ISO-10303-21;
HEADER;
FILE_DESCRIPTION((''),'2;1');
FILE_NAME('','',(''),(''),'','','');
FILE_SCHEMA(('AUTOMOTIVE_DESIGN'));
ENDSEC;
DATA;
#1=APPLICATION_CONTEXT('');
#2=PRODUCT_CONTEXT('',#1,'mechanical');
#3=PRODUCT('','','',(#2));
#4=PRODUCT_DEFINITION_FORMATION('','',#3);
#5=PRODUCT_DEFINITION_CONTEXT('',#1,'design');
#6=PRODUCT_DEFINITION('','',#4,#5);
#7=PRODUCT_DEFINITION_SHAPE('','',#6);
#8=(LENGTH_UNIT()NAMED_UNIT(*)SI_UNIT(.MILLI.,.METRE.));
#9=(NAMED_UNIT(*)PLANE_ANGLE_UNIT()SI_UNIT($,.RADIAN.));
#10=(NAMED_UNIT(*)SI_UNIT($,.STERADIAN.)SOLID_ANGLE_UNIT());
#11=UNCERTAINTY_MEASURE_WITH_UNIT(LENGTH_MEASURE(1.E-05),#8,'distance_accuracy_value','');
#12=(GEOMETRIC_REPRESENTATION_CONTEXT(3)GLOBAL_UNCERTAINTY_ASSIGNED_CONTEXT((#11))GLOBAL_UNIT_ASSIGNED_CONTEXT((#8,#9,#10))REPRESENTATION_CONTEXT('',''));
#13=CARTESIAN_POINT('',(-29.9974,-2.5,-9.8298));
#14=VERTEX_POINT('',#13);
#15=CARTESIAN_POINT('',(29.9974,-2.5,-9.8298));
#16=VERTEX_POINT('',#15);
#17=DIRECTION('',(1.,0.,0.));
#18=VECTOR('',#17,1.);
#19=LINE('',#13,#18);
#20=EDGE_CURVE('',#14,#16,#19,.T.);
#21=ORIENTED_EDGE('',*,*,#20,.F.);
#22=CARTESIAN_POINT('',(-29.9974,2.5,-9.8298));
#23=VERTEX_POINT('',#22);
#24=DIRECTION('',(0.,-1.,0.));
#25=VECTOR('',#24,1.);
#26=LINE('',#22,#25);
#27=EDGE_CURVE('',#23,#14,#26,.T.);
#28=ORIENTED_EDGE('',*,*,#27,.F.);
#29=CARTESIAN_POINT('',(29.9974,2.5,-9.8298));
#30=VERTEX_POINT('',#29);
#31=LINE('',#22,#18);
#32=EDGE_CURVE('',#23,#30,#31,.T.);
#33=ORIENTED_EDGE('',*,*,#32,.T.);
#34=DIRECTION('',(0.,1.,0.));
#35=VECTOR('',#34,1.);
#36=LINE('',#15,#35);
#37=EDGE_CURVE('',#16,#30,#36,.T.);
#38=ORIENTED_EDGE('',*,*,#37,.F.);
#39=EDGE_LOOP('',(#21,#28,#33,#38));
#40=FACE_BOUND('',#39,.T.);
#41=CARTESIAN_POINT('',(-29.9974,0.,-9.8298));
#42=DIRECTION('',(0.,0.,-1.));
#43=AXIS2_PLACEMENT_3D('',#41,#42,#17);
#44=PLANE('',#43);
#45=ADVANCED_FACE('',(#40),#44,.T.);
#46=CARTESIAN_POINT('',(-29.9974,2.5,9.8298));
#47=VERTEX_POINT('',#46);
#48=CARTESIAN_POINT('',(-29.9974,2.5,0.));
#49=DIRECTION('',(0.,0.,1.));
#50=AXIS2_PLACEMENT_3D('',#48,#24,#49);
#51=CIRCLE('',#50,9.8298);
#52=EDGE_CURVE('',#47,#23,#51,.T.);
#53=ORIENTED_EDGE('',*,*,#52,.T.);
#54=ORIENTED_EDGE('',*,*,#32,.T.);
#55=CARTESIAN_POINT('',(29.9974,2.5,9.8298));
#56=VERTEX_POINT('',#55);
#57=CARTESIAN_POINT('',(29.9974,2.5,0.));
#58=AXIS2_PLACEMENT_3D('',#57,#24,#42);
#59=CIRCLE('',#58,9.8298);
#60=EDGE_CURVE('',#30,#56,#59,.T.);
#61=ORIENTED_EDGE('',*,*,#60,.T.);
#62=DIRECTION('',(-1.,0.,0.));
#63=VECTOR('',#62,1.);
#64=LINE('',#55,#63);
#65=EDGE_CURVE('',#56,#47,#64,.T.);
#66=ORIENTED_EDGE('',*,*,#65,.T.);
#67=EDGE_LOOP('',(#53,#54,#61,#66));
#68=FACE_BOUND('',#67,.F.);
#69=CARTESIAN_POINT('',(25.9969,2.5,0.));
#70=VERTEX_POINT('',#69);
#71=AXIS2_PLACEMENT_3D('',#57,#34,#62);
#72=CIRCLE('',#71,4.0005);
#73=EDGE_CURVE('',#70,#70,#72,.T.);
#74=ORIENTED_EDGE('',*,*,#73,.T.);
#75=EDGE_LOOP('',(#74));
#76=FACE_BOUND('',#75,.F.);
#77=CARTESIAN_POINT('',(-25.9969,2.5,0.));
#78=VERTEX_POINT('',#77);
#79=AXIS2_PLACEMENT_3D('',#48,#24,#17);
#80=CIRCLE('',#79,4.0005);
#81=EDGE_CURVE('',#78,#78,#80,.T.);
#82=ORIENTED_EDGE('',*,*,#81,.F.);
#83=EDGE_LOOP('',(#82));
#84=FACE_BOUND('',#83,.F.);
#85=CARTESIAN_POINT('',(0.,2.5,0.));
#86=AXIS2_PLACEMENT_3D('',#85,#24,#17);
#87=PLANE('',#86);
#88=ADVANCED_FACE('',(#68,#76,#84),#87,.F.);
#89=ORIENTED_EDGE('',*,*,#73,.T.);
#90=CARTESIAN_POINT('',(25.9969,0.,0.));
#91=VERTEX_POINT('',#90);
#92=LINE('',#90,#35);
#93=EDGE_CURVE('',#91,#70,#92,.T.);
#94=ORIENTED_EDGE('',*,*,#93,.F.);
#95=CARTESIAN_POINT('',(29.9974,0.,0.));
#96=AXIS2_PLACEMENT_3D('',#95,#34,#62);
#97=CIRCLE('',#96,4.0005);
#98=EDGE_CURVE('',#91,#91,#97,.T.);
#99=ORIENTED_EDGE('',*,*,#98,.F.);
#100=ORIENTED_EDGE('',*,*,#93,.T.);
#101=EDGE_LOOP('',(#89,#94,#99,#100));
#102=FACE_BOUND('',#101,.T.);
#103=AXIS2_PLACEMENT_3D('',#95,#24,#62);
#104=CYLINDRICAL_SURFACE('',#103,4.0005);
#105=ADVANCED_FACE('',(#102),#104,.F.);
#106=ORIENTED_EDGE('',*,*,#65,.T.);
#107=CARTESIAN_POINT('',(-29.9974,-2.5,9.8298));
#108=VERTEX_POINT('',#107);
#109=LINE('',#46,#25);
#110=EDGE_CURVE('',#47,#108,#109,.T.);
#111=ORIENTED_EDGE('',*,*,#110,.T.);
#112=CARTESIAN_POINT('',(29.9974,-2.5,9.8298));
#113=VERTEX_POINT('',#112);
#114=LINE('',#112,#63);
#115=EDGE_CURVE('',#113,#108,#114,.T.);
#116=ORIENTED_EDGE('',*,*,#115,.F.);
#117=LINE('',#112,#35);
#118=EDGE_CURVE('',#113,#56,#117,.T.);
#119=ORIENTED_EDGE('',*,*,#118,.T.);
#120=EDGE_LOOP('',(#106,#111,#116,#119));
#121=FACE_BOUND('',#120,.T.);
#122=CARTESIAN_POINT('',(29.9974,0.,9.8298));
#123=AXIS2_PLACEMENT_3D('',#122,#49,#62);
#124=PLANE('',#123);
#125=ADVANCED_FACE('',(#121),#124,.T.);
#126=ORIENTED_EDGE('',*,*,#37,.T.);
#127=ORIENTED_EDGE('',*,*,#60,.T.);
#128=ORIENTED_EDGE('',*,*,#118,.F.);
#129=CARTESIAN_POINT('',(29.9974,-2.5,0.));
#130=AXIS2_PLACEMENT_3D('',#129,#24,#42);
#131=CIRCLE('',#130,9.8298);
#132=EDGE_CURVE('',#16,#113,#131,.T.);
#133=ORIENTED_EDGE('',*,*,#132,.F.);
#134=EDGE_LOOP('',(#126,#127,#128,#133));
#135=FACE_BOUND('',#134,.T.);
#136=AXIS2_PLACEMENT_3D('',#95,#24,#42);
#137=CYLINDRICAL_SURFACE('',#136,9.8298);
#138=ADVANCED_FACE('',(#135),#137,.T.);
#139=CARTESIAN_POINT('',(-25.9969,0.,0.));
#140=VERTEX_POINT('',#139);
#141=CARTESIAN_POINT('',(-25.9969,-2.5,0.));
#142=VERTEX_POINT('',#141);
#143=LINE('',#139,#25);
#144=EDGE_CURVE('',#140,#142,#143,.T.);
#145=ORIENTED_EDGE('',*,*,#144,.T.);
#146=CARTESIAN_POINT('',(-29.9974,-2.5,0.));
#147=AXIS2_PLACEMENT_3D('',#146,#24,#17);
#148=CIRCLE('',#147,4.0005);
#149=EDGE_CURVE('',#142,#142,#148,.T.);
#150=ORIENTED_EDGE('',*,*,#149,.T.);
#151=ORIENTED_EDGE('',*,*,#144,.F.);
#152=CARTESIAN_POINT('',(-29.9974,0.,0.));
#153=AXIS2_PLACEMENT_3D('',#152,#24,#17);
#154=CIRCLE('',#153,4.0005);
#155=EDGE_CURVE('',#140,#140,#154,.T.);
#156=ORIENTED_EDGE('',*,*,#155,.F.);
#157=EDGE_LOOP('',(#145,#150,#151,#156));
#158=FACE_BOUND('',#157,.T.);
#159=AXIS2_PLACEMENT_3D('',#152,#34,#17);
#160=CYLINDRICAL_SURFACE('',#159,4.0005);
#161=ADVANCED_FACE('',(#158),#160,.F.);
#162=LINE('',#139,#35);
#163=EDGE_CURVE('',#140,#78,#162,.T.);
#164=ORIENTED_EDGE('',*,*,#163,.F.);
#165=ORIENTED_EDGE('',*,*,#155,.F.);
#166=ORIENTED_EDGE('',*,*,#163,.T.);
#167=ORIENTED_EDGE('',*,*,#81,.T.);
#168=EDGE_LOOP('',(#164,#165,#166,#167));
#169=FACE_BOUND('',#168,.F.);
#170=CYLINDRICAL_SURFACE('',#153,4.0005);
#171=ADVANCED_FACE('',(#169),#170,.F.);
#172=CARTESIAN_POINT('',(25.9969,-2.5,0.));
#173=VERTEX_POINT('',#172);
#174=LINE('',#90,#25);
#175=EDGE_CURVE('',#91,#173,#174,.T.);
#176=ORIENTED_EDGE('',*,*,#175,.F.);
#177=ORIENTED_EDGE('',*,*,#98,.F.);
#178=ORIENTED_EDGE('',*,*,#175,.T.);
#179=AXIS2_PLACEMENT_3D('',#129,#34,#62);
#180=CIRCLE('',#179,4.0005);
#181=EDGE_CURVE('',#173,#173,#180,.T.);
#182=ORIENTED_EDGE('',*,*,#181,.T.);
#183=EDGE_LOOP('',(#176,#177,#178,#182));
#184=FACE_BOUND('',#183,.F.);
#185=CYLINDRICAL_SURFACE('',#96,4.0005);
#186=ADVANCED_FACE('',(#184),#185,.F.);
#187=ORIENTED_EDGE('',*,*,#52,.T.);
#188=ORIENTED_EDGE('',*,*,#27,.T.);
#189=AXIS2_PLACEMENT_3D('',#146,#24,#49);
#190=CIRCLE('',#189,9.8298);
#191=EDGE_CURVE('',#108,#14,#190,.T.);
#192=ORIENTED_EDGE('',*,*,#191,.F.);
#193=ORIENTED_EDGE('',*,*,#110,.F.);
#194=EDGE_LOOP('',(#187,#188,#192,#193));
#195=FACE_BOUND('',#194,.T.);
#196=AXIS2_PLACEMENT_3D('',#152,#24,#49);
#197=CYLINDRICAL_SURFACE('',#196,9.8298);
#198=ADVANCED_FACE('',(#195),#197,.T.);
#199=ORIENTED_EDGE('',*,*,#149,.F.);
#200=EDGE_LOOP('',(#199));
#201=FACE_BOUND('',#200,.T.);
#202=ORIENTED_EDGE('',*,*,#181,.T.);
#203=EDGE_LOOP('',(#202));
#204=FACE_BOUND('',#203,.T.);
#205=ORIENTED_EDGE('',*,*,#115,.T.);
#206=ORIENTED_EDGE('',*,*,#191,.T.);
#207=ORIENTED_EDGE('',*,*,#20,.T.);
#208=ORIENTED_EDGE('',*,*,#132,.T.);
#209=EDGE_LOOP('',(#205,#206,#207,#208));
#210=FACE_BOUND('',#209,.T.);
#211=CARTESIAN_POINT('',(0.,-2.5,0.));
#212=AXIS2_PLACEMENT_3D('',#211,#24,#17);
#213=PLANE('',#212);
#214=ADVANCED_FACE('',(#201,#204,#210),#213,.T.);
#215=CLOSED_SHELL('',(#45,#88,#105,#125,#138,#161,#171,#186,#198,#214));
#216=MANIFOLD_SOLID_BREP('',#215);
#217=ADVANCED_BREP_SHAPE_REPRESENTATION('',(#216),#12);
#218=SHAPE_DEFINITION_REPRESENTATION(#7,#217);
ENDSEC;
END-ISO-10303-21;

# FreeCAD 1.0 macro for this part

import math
import FreeCAD as App
import Part
import Sketcher
Q = App.Units.Quantity

doc = App.newDocument("Part")
body = doc.addObject("PartDesign::Body", "Body")

sketch1 = body.newObject("Sketcher::SketchObject", "Sketch")
sketch1.AttachmentSupport = (doc.getObject("XZ_Plane"), [""])
sketch1.MapMode = "FlatFace"
sketch1.addGeometry([
    Part.LineSegment(App.Vector(29.9974, 9.8298, 0), App.Vector(-29.9974, 9.8298, 0)),
    Part.ArcOfCircle(Part.Circle(App.Vector(-29.9974, 0, 0), App.Vector(0, 0, 1), 9.8298), math.radians(90), math.radians(270)),
    Part.LineSegment(App.Vector(-29.9974, -9.8298, 0), App.Vector(29.9974, -9.8298, 0)),
    Part.ArcOfCircle(Part.Circle(App.Vector(29.9974, 0, 0), App.Vector(0, 0, 1), 9.8298), math.radians(-90), math.radians(90)),
    Part.Circle(App.Vector(-29.9974, 0, 0), App.Vector(0, 0, 1), 4.0005),
    Part.Circle(App.Vector(29.9974, 0, 0), App.Vector(0, 0, 1), 4.0005),
], False)
sketch1.addConstraint([
    Sketcher.Constraint("Tangent", 0, 2, 1, 1),
    Sketcher.Constraint("Tangent", 1, 2, 2, 1),
    Sketcher.Constraint("Tangent", 2, 2, 3, 1),
    Sketcher.Constraint("Tangent", 3, 2, 0, 1),
    Sketcher.Constraint("Horizontal", 0),
    Sketcher.Constraint("Horizontal", 2),
    Sketcher.Constraint("Coincident", 4, 3, 1, 3),
    Sketcher.Constraint("Coincident", 5, 3, 3, 3),
    Sketcher.Constraint("Equal", 4, 5),
    Sketcher.Constraint("Symmetric", 1, 3, 3, 3, -1, 1),
    Sketcher.Constraint("Diameter", 4, Q("0.315 in")),
    Sketcher.Constraint("Radius", 1, Q("0.387 in")),
    Sketcher.Constraint("DistanceX", 0, 2, 0, 1, Q("2.362 in")),
])
pad1 = body.newObject("PartDesign::Pad", "Pad")
pad1.Profile = sketch1
pad1.Length = 5
pad1.Midplane = True

doc.recompute()
